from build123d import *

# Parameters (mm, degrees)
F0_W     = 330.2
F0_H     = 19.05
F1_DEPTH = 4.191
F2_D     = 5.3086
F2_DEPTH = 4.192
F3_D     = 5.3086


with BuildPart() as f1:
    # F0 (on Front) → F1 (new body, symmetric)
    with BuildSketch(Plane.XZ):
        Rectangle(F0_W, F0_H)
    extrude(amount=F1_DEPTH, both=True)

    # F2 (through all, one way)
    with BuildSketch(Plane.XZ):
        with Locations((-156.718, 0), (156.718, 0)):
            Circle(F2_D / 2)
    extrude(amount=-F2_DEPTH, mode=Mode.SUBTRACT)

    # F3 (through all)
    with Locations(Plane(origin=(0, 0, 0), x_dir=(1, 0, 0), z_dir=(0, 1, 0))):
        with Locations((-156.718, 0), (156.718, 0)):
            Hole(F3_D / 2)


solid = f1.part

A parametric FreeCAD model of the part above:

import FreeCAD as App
import Part
import Sketcher
Q = App.Units.Quantity

doc = App.newDocument("Part")
params = doc.addObject("Spreadsheet::Sheet", "Params")
for row, (alias, value) in enumerate([
    ("sketch1_width", "13 in"),
    ("sketch1_height", "0.75 in"),
    ("pad1_length", "0.33 in"),
    ("sketch2_diameter", "0.209 in"),
    ("sketch3_diameter", "0.209 in"),
    ("hole_diameter", "0.209 in"),
], start=1):
    params.set(f"A{row}", alias)
    params.set(f"B{row}", "=" + value)
    params.setAlias(f"B{row}", alias)

body = doc.addObject("PartDesign::Body", "Body")

# Sketch on XZ plane
sketch1 = body.newObject("Sketcher::SketchObject", "Sketch")
sketch1.AttachmentSupport = (doc.getObject("XZ_Plane"), [""])
sketch1.MapMode = "FlatFace"
sketch1.addGeometry([
    Part.LineSegment(App.Vector(-165.1, 9.525, 0), App.Vector(-165.1, -9.525, 0)),
    Part.LineSegment(App.Vector(-165.1, -9.525, 0), App.Vector(165.1, -9.525, 0)),
    Part.LineSegment(App.Vector(165.1, -9.525, 0), App.Vector(165.1, 9.525, 0)),
    Part.LineSegment(App.Vector(165.1, 9.525, 0), App.Vector(-165.1, 9.525, 0)),
], False)
sketch1.addConstraint([
    Sketcher.Constraint("Coincident", 0, 2, 1, 1),
    Sketcher.Constraint("Coincident", 1, 2, 2, 1),
    Sketcher.Constraint("Coincident", 2, 2, 3, 1),
    Sketcher.Constraint("Coincident", 3, 2, 0, 1),
    Sketcher.Constraint("Vertical", 0),
    Sketcher.Constraint("Horizontal", 1),
    Sketcher.Constraint("Vertical", 2),
    Sketcher.Constraint("Horizontal", 3),
    Sketcher.Constraint("Symmetric", 0, 2, 2, 2, -1, 1),
    Sketcher.Constraint("DistanceX", 1, 1, 1, 2, Q("13 in")),
    Sketcher.Constraint("DistanceY", 0, 2, 0, 1, Q("0.75 in")),
])
sketch1.setExpression("Constraints[9]", "Params.sketch1_width")
sketch1.setExpression("Constraints[10]", "Params.sketch1_height")
pad1 = body.newObject("PartDesign::Pad", "Pad")
pad1.Profile = sketch1
pad1.setExpression("Length", "Params.pad1_length")
pad1.Midplane = True

# Sketch on XZ plane
sketch2 = body.newObject("Sketcher::SketchObject", "Sketch001")
sketch2.AttachmentSupport = (doc.getObject("XZ_Plane"), [""])
sketch2.MapMode = "FlatFace"
sketch2.addGeometry([
    Part.Circle(App.Vector(156.718, 0, 0), App.Vector(0, 0, 1), 2.6543),
    Part.Circle(App.Vector(-156.718, 0, 0), App.Vector(0, 0, 1), 2.6543),
], False)
sketch2.addConstraint([
    Sketcher.Constraint("Equal", 0, 1),
    Sketcher.Constraint("Symmetric", 0, 3, 1, 3, -1, 1),
    Sketcher.Constraint("PointOnObject", 0, 3, -1),
    Sketcher.Constraint("Diameter", 0, Q("0.209 in")),
    Sketcher.Constraint("DistanceX", -1, 1, 0, 3, Q("6.17 in")),
])
sketch2.setExpression("Constraints[3]", "Params.sketch2_diameter")
pocket1 = body.newObject("PartDesign::Pocket", "Pocket")
pocket1.Profile = sketch2
pocket1.Type = "ThroughAll"

# Sketch on XZ plane
sketch3 = body.newObject("Sketcher::SketchObject", "Sketch002")
sketch3.AttachmentSupport = (doc.getObject("XZ_Plane"), [""])
sketch3.MapMode = "FlatFace"
sketch3.addGeometry([
    Part.Circle(App.Vector(-156.718, 0, 0), App.Vector(0, 0, 1), 2.6543),
    Part.Circle(App.Vector(156.718, 0, 0), App.Vector(0, 0, 1), 2.6543),
], False)
sketch3.addConstraint([
    Sketcher.Constraint("Equal", 0, 1),
    Sketcher.Constraint("Symmetric", 0, 3, 1, 3, -1, 1),
    Sketcher.Constraint("PointOnObject", 0, 3, -1),
    Sketcher.Constraint("Diameter", 0, Q("0.209 in")),
    Sketcher.Constraint("DistanceX", 0, 3, -1, 1, Q("6.17 in")),
])
sketch3.setExpression("Constraints[3]", "Params.sketch3_diameter")
doc.recompute()
hole = body.newObject("PartDesign::Hole", "Hole")
hole.Profile = sketch3
hole.ThreadType = "None"
hole.setExpression("Diameter", "Params.hole_diameter")
hole.DepthType = "ThroughAll"
hole.Reversed = True

doc.recompute()
